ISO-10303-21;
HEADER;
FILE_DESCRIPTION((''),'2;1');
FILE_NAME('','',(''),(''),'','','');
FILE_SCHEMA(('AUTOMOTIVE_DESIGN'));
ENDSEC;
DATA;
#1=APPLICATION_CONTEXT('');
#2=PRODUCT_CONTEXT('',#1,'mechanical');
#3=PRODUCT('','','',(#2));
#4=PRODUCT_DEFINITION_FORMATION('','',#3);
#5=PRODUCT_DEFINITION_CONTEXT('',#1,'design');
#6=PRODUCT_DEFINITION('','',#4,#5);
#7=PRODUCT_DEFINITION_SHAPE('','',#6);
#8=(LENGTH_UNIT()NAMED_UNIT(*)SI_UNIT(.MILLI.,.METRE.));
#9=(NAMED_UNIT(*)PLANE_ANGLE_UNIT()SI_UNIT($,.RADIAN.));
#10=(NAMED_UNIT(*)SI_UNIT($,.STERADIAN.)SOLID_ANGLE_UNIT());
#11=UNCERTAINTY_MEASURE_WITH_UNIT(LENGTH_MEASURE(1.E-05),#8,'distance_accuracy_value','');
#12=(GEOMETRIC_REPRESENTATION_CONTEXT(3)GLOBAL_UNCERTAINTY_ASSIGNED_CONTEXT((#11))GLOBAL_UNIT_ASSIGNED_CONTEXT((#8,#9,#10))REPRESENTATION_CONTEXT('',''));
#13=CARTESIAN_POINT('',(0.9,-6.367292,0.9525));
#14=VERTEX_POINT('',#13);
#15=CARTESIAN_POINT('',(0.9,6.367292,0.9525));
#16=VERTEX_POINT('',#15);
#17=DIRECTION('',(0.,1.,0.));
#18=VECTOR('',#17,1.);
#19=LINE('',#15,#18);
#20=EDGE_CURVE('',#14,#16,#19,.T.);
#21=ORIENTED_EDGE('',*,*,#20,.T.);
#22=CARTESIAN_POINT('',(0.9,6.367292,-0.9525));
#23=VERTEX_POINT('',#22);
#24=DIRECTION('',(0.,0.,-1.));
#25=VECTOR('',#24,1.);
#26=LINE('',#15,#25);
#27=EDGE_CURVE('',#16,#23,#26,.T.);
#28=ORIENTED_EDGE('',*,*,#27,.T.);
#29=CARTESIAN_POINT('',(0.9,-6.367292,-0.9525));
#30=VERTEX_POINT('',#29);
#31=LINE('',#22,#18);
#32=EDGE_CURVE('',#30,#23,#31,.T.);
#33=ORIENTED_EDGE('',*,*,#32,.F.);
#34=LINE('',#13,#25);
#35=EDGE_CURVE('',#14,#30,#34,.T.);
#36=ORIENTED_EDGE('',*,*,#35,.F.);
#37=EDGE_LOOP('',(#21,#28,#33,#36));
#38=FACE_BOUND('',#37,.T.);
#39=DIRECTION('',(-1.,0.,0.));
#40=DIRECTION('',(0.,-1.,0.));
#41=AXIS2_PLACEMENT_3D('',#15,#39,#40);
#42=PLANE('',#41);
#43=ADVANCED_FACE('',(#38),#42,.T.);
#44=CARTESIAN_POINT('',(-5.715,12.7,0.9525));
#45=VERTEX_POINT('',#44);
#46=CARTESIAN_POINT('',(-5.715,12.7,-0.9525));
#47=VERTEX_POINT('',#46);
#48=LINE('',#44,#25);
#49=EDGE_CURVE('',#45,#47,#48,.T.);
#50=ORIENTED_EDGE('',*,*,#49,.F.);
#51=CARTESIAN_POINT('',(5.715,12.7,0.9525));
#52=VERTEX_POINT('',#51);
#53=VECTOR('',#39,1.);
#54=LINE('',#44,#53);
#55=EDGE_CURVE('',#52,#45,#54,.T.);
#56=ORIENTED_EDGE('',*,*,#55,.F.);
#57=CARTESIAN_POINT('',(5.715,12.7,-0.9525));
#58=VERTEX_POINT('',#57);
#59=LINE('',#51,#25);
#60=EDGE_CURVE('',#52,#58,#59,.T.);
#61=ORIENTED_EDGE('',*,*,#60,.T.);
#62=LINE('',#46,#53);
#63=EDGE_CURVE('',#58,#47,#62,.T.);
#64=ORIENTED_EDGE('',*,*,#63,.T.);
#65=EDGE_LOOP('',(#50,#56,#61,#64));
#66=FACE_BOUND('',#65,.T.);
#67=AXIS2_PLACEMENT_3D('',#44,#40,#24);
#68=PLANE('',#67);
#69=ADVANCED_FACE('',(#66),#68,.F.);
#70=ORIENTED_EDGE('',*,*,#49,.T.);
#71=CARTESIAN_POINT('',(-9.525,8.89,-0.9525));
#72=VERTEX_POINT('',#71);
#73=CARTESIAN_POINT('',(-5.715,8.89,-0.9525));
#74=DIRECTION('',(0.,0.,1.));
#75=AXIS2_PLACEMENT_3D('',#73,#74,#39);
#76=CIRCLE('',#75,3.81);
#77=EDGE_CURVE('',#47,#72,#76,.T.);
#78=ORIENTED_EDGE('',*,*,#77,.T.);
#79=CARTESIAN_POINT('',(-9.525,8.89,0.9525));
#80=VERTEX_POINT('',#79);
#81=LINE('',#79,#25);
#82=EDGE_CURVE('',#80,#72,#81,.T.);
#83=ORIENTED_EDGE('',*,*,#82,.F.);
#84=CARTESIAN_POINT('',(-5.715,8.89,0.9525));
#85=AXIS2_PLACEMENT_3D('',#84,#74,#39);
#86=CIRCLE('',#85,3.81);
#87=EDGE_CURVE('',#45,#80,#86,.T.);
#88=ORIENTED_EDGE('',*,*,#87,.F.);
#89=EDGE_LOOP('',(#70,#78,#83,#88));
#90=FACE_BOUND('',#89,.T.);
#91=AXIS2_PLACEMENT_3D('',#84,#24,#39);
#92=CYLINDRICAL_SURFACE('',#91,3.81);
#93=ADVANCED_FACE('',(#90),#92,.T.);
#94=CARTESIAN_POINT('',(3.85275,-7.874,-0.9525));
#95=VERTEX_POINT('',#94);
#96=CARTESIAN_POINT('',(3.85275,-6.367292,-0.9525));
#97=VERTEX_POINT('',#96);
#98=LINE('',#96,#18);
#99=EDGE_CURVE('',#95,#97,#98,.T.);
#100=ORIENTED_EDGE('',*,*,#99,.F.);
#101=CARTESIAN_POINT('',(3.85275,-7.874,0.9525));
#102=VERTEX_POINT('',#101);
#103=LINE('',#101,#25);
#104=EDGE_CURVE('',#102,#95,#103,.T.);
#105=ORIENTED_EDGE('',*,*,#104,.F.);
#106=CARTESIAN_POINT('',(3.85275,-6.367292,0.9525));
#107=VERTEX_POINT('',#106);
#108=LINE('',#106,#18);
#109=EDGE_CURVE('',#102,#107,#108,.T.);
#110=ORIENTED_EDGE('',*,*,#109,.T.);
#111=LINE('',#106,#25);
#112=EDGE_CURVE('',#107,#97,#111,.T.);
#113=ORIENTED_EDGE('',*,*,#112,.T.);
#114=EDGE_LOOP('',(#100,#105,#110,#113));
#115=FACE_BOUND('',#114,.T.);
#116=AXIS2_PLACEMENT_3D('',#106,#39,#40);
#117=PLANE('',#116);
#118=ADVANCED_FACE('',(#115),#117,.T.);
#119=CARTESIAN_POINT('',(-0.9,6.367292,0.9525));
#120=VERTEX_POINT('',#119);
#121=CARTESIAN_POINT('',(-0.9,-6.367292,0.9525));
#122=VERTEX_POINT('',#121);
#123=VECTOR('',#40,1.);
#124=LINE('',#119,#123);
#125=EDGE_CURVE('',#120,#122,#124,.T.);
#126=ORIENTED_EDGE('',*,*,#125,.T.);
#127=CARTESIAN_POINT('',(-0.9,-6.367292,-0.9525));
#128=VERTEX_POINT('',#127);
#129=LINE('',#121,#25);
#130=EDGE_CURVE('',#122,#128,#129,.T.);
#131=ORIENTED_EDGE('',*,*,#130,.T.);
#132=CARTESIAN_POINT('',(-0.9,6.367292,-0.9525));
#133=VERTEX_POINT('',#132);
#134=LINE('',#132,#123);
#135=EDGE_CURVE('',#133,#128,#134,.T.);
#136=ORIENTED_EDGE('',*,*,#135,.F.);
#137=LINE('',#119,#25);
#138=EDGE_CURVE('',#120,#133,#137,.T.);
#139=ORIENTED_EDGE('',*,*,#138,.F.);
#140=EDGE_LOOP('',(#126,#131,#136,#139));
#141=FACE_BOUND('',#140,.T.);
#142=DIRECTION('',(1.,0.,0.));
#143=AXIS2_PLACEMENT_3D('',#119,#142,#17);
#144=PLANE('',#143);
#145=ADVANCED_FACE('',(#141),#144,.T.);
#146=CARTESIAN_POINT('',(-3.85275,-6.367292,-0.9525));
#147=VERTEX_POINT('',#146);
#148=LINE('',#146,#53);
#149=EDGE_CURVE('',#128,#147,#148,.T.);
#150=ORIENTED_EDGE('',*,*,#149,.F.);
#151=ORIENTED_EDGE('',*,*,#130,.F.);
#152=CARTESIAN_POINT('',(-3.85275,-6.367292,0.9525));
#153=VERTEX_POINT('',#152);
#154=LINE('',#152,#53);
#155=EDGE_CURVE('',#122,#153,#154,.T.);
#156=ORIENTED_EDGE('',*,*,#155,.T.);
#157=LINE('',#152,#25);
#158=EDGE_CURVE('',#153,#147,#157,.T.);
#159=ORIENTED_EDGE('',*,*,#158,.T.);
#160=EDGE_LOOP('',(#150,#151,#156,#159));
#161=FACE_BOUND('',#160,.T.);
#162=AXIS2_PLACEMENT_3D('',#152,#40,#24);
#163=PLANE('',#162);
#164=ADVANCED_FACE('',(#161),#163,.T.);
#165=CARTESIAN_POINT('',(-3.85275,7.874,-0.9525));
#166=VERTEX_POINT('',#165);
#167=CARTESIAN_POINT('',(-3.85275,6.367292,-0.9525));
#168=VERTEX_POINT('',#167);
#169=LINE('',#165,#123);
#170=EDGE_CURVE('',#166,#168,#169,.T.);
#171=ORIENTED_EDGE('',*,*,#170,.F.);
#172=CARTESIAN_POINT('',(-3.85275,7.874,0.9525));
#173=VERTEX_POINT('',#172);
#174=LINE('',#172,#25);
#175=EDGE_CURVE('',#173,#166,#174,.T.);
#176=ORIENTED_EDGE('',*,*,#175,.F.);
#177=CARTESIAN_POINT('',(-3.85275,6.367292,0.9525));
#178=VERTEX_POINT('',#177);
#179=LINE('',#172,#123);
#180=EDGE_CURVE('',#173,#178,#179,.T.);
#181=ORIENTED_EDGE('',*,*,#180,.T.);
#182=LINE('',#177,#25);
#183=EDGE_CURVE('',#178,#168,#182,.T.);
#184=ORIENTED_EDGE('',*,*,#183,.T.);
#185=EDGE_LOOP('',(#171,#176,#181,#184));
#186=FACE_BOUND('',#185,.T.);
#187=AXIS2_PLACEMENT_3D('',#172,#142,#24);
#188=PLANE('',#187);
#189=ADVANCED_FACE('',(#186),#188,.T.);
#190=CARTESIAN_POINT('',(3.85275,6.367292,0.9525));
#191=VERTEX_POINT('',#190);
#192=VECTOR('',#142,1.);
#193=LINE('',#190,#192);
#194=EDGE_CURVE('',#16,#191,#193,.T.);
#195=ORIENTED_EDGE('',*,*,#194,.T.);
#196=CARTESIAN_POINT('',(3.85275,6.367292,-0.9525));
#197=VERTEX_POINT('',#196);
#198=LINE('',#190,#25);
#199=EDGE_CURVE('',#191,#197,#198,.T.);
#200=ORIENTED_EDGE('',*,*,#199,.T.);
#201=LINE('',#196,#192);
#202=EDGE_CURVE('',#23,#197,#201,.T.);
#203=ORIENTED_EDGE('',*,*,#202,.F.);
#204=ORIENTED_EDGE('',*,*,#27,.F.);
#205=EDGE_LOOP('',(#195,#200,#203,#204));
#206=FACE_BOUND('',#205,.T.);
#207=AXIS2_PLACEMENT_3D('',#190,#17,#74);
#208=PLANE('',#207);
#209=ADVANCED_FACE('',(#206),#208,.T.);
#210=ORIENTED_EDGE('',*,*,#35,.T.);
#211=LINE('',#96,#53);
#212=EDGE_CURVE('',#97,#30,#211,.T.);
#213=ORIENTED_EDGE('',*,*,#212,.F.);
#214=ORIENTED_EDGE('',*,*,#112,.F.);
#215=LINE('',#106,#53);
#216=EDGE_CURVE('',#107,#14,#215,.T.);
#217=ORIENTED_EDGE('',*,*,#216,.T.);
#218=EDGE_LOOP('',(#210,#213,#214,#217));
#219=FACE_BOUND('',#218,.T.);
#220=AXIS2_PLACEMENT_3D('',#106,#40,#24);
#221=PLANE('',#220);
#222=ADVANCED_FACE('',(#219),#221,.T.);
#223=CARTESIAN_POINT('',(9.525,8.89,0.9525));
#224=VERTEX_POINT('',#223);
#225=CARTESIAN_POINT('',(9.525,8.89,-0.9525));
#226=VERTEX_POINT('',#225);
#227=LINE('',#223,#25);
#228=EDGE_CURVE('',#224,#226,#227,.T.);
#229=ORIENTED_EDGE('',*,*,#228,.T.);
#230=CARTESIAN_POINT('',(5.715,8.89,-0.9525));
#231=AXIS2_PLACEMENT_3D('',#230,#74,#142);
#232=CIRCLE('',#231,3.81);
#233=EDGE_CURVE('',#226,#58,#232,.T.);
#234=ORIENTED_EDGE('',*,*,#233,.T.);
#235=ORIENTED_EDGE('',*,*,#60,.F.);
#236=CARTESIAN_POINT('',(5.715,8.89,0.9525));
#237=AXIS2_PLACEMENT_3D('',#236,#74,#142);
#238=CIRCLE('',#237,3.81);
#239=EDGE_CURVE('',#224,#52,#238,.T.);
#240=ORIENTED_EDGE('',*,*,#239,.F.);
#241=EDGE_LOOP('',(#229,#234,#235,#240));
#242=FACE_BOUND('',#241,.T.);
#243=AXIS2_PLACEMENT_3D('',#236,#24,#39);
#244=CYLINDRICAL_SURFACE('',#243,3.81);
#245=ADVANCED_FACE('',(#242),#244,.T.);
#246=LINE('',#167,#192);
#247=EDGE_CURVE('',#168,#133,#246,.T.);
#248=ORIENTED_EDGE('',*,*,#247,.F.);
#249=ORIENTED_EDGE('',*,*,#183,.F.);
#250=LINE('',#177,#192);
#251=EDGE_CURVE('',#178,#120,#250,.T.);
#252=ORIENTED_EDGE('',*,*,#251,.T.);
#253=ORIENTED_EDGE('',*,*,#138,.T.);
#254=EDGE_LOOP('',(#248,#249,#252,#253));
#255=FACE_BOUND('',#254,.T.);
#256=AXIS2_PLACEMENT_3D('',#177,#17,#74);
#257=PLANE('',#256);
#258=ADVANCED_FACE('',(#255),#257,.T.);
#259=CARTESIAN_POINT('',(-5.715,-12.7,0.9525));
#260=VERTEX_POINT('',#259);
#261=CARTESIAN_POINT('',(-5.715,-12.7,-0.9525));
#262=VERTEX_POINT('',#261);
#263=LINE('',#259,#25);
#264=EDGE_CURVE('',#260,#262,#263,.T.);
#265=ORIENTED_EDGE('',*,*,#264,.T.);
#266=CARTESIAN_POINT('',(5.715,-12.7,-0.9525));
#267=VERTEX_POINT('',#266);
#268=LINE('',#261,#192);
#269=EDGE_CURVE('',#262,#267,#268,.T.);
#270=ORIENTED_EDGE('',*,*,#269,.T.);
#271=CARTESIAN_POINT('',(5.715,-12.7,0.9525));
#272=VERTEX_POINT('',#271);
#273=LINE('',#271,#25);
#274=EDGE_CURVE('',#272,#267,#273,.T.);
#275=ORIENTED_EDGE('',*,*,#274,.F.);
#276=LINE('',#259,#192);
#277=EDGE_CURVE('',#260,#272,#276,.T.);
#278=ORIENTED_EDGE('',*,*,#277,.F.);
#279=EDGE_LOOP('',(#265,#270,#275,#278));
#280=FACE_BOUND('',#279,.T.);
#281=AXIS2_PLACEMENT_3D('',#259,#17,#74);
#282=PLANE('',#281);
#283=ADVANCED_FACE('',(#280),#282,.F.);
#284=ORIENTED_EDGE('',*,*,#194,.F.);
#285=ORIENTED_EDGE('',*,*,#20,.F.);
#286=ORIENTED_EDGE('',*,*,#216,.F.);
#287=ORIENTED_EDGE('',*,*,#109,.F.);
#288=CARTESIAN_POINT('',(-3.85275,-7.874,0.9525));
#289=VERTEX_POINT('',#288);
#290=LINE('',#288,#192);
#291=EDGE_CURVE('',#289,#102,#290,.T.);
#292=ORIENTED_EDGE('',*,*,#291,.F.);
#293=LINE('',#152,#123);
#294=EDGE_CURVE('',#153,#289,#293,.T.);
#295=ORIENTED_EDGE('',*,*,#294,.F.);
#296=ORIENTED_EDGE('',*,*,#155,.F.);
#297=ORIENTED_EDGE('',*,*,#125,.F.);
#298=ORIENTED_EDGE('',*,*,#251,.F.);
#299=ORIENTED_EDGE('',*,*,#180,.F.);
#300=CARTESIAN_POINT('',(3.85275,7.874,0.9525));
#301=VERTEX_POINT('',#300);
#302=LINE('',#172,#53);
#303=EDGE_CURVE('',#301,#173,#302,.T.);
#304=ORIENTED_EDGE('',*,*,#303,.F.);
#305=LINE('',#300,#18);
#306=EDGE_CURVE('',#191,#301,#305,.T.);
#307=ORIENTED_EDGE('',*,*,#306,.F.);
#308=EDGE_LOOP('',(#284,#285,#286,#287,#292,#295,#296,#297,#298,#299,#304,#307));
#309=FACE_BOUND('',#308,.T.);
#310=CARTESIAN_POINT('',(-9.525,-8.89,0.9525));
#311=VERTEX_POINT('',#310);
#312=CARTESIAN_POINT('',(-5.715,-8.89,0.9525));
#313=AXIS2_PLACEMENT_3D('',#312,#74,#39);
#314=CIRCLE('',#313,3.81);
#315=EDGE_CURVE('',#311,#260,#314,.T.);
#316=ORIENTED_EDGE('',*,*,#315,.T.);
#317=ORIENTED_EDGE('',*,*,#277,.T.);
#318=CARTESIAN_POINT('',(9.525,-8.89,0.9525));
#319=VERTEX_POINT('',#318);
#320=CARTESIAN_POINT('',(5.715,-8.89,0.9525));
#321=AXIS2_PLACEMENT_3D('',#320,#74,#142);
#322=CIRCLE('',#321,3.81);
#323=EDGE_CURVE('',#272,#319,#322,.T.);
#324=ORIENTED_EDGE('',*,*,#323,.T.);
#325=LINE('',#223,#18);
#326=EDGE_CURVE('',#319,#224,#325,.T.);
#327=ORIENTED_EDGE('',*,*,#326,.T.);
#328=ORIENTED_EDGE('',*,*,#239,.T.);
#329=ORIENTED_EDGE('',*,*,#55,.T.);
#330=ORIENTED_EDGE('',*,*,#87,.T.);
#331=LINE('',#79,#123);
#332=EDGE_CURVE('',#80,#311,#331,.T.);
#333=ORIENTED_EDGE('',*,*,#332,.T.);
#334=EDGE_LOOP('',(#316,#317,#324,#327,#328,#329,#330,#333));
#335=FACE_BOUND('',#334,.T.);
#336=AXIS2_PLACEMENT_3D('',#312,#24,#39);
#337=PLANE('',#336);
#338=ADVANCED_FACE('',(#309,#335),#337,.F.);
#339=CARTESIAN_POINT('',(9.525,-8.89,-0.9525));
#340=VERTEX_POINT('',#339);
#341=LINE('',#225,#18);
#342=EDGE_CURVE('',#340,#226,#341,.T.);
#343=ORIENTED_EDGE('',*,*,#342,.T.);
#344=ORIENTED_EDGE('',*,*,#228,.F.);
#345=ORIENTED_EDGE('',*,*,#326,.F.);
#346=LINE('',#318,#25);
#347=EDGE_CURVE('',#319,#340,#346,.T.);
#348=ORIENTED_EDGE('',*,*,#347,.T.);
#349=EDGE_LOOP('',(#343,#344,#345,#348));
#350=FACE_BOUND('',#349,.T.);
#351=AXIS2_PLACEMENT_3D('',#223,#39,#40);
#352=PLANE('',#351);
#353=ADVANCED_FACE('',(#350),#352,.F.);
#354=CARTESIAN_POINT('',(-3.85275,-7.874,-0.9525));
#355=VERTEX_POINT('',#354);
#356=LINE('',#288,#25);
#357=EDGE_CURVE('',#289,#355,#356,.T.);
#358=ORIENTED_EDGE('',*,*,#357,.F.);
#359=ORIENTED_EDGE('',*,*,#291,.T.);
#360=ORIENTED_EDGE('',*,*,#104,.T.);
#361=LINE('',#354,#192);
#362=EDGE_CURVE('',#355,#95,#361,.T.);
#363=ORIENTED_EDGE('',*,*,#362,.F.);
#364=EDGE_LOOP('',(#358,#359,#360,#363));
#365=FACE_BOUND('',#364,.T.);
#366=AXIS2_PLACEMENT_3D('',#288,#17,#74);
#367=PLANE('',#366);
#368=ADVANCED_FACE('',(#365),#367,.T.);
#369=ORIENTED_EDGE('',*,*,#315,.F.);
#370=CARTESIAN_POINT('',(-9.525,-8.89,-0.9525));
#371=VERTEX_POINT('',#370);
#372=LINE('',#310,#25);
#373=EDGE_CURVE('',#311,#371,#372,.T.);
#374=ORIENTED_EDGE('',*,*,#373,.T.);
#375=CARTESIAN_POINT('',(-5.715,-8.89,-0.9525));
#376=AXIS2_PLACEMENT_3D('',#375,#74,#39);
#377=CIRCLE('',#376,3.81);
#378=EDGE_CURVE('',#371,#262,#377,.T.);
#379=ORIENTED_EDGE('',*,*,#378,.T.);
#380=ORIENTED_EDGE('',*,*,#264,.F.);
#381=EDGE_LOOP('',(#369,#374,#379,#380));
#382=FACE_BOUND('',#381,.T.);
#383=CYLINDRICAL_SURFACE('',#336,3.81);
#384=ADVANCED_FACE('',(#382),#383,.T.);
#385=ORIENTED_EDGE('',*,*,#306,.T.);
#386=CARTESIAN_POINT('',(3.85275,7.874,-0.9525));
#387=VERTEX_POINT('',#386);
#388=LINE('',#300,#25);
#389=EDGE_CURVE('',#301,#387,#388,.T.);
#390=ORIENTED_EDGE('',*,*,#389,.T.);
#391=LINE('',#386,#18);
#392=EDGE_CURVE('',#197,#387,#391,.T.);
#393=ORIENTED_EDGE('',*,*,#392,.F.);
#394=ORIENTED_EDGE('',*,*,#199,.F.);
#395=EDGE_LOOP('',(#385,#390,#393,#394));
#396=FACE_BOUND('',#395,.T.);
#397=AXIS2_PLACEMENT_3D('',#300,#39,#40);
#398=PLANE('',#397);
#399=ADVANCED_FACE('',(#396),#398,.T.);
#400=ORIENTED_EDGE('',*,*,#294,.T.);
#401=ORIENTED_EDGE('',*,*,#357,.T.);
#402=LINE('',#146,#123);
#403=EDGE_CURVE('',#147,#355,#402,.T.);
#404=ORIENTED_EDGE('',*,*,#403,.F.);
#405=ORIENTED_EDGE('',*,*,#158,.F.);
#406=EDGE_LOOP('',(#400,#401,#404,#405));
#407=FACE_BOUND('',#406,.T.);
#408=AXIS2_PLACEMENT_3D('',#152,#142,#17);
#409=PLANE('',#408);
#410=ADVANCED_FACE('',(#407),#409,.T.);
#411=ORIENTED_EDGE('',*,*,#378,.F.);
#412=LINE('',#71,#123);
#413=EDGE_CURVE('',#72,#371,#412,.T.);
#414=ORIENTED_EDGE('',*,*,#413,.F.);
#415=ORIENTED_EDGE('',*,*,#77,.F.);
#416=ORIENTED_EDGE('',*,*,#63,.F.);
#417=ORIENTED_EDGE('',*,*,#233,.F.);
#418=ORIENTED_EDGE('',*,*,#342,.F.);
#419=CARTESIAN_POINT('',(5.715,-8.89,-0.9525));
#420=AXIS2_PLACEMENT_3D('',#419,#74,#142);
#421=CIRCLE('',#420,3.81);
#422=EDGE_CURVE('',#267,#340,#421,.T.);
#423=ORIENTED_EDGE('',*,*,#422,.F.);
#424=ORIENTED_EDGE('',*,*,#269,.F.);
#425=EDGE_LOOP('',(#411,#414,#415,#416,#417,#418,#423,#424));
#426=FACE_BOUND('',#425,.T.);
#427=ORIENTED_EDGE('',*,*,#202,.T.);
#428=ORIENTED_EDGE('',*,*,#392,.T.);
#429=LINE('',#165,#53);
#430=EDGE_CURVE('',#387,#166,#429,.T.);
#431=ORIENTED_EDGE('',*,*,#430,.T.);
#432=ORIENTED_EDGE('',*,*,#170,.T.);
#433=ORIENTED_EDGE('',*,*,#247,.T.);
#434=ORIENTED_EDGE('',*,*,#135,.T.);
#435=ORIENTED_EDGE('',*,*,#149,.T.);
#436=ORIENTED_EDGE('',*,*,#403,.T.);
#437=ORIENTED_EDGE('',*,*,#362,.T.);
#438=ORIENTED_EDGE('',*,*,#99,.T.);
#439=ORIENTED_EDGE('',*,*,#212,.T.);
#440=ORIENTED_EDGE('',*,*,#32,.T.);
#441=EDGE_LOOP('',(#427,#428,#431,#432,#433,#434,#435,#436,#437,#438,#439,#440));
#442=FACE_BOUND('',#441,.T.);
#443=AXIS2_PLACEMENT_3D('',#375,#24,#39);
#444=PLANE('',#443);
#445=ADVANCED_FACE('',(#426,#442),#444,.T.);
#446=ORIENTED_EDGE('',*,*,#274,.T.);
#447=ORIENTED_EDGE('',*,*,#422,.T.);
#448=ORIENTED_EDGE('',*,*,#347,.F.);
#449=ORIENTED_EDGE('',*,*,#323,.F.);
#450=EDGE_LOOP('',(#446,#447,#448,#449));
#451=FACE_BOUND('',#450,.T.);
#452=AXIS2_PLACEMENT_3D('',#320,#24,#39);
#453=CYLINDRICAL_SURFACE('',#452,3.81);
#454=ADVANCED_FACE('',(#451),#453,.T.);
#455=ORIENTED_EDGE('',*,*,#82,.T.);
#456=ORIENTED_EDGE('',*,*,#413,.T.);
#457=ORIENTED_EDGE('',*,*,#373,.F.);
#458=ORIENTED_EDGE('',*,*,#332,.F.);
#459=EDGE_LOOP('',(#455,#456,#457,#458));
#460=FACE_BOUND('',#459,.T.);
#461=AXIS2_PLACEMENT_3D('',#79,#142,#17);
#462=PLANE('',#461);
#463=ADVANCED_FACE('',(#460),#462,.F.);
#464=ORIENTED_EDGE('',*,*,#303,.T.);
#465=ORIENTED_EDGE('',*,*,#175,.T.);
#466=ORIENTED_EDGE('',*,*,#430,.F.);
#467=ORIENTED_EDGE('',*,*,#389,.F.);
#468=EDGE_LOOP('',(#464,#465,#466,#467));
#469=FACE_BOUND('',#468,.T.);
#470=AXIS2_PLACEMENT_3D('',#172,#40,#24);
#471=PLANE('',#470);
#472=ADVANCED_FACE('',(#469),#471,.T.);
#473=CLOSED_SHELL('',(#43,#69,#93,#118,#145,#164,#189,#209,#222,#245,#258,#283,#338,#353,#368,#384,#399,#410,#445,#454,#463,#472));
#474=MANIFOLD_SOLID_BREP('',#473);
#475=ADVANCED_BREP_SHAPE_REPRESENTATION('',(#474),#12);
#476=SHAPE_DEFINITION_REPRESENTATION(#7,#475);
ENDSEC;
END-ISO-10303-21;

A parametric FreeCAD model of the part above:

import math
import FreeCAD as App
import Part
import Sketcher

V = App.Vector
Q = App.Units.Quantity


def add_polygon(sketch, points):
    """Adds a closed chain of lines whose ends are joined by coincident constraints."""
    first, n = sketch.GeometryCount, len(points)
    for a, b in zip(points, points[1:] + points[:1]):
        sketch.addGeometry(Part.LineSegment(App.Vector(*a, 0), App.Vector(*b, 0)), False)
    for i in range(n):
        sketch.addConstraint(Sketcher.Constraint("Coincident", first + i, 2, first + (i + 1) % n, 1))

doc = App.newDocument("Part")
body = doc.addObject("PartDesign::Body", "Body")

sketch1 = doc.addObject("Sketcher::SketchObject", "Sketch")
body.addObject(sketch1)
sketch1.AttachmentSupport = (doc.XY_Plane, [""])
sketch1.MapMode = "FlatFace"
sketch1.addGeometry(Part.LineSegment(V(5.7, 12.7, 0), V(-5.7, 12.7, 0)), False)
sketch1.addGeometry(Part.ArcOfCircle(Part.Circle(V(-5.7, 8.9, 0), V(0, 0, 1), 3.8), math.radians(90), math.radians(180)), False)
sketch1.addGeometry(Part.LineSegment(V(-9.5, 8.9, 0), V(-9.5, -8.9, 0)), False)
sketch1.addGeometry(Part.ArcOfCircle(Part.Circle(V(-5.7, -8.9, 0), V(0, 0, 1), 3.8), math.radians(-180), math.radians(-90)), False)
sketch1.addGeometry(Part.LineSegment(V(-5.7, -12.7, 0), V(5.7, -12.7, 0)), False)
sketch1.addGeometry(Part.ArcOfCircle(Part.Circle(V(5.7, -8.9, 0), V(0, 0, 1), 3.8), math.radians(-90), math.radians(0)), False)
sketch1.addGeometry(Part.LineSegment(V(9.5, -8.9, 0), V(9.5, 8.9, 0)), False)
sketch1.addGeometry(Part.ArcOfCircle(Part.Circle(V(5.7, 8.9, 0), V(0, 0, 1), 3.8), math.radians(0), math.radians(90)), False)
add_polygon(sketch1, [(-3.9, -6.4), (-0.9, -6.4), (-0.9, 6.4), (-3.9, 6.4), (-3.9, 7.9), (3.9, 7.9), (3.9, 6.4), (0.9, 6.4), (0.9, -6.4), (3.9, -6.4), (3.9, -7.9), (-3.9, -7.9)])
sketch1.addConstraint(Sketcher.Constraint("Tangent", 0, 2, 1, 1))
sketch1.addConstraint(Sketcher.Constraint("Tangent", 1, 2, 2, 1))
sketch1.addConstraint(Sketcher.Constraint("Tangent", 2, 2, 3, 1))
sketch1.addConstraint(Sketcher.Constraint("Tangent", 3, 2, 4, 1))
sketch1.addConstraint(Sketcher.Constraint("Tangent", 4, 2, 5, 1))
sketch1.addConstraint(Sketcher.Constraint("Tangent", 5, 2, 6, 1))
sketch1.addConstraint(Sketcher.Constraint("Tangent", 6, 2, 7, 1))
sketch1.addConstraint(Sketcher.Constraint("Tangent", 7, 2, 0, 1))
sketch1.addConstraint(Sketcher.Constraint("Horizontal", 0))
sketch1.addConstraint(Sketcher.Constraint("Vertical", 2))
sketch1.addConstraint(Sketcher.Constraint("Horizontal", 4))
sketch1.addConstraint(Sketcher.Constraint("Vertical", 6))
sketch1.addConstraint(Sketcher.Constraint("Horizontal", 8))
sketch1.addConstraint(Sketcher.Constraint("Vertical", 9))
sketch1.addConstraint(Sketcher.Constraint("Horizontal", 10))
sketch1.addConstraint(Sketcher.Constraint("Vertical", 11))
sketch1.addConstraint(Sketcher.Constraint("Horizontal", 12))
sketch1.addConstraint(Sketcher.Constraint("Vertical", 13))
sketch1.addConstraint(Sketcher.Constraint("Horizontal", 14))
sketch1.addConstraint(Sketcher.Constraint("Vertical", 15))
sketch1.addConstraint(Sketcher.Constraint("Horizontal", 16))
sketch1.addConstraint(Sketcher.Constraint("Vertical", 17))
sketch1.addConstraint(Sketcher.Constraint("Horizontal", 18))
sketch1.addConstraint(Sketcher.Constraint("Vertical", 19))
sketch1.addConstraint(Sketcher.Constraint("Equal", 1, 3))
sketch1.addConstraint(Sketcher.Constraint("Equal", 3, 5))
sketch1.addConstraint(Sketcher.Constraint("Equal", 5, 7))
sketch1.addConstraint(Sketcher.Constraint("Symmetric", 1, 3, 5, 3, -1, 1))
sketch1.addConstraint(Sketcher.Constraint("Symmetric", 8, 2, 14, 2, -1, 1))
sketch1.addConstraint(Sketcher.Constraint("Symmetric", 10, 2, 16, 2, -1, 1))
sketch1.addConstraint(Sketcher.Constraint("Symmetric", 12, 2, 18, 2, -1, 1))
sketch1.addConstraint(Sketcher.Constraint("Symmetric", 10, 2, 13, 2, -2))
sketch1.addConstraint(Sketcher.Constraint("Radius", 1, Q("0.15 in")))
sketch1.addConstraint(Sketcher.Constraint("DistanceY", 2, 2, 2, 1, Q("0.7 in")))
sketch1.addConstraint(Sketcher.Constraint("DistanceX", 0, 2, 0, 1, Q("0.45 in")))
sketch1.addConstraint(Sketcher.Constraint("DistanceY", -1, 1, 11, 2, Q("0.31 in")))
sketch1.addConstraint(Sketcher.Constraint("DistanceX", 12, 1, 12, 2, Q("7.7055 mm")))
sketch1.addConstraint(Sketcher.Constraint("DistanceX", 8, 1, 8, 2, Q("2.95275 mm")))
sketch1.addConstraint(Sketcher.Constraint("DistanceY", 9, 1, 9, 2, Q("12.734584 mm")))
pad1 = doc.addObject("PartDesign::Pad", "Pad")
body.addObject(pad1)
pad1.Profile = sketch1
pad1.Length = Q("0.075 in")
pad1.Midplane = True

doc.recompute()
